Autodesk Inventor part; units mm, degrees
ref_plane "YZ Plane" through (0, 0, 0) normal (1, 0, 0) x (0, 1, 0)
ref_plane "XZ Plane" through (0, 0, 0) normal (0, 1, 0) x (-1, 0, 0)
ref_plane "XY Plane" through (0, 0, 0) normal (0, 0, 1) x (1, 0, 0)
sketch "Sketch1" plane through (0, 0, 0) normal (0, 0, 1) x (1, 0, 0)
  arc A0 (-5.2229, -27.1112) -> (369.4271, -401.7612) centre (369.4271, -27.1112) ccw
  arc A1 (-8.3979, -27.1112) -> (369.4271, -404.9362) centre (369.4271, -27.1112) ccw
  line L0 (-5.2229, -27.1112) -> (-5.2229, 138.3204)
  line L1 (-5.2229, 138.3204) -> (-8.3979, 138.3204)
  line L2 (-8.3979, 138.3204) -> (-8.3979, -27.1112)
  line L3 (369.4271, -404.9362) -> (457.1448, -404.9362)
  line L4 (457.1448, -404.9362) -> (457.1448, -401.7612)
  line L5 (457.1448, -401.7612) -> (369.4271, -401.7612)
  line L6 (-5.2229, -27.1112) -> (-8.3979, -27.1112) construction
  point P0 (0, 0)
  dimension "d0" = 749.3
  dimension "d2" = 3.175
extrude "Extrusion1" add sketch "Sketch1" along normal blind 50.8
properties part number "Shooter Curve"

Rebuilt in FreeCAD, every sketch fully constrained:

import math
import FreeCAD as App
import Part
import Sketcher

V = App.Vector
Q = App.Units.Quantity

doc = App.newDocument("Part")
params = doc.addObject("Spreadsheet::Sheet", "Params")
for row, (alias, value) in enumerate([
    ("sketch1_radius", "14.75 in"),
    ("sketch1_width", "0.125 in"),
    ("pad1_length", "2 in"),
], start=1):
    params.set(f"A{row}", alias)
    params.set(f"B{row}", "=" + value)
    params.setAlias(f"B{row}", alias)

body = doc.addObject("PartDesign::Body", "Body")

sketch1 = body.newObject("Sketcher::SketchObject", "Sketch")
sketch1.AttachmentSupport = (doc.getObject("XY_Plane"), [""])
sketch1.MapMode = "FlatFace"
sketch1.addGeometry([
    Part.ArcOfCircle(Part.Circle(V(369.4, -27.1, 0), V(0, 0, 1), 374.6), math.radians(180), math.radians(270)),
    Part.LineSegment(V(-5.2, -27.1, 0), V(-5.2, 138.3, 0)),
    Part.LineSegment(V(-5.2, 138.3, 0), V(-8.4, 138.3, 0)),
    Part.LineSegment(V(-8.4, 138.3, 0), V(-8.4, -27.1, 0)),
    Part.ArcOfCircle(Part.Circle(V(369.4, -27.1, 0), V(0, 0, 1), 377.8), math.radians(180), math.radians(270)),
    Part.LineSegment(V(369.4, -404.9, 0), V(457.1, -404.9, 0)),
    Part.LineSegment(V(457.1, -404.9, 0), V(457.1, -401.8, 0)),
    Part.LineSegment(V(457.1, -401.8, 0), V(369.4, -401.8, 0)),
], False)
sketch1.addConstraint([
    Sketcher.Constraint("Tangent", 0, 1, 1, 1),
    Sketcher.Constraint("Coincident", 1, 2, 2, 1),
    Sketcher.Constraint("Coincident", 2, 2, 3, 1),
    Sketcher.Constraint("Tangent", 3, 2, 4, 1),
    Sketcher.Constraint("Tangent", 4, 2, 5, 1),
    Sketcher.Constraint("Coincident", 5, 2, 6, 1),
    Sketcher.Constraint("Coincident", 6, 2, 7, 1),
    Sketcher.Constraint("Tangent", 7, 2, 0, 2),
    Sketcher.Constraint("Vertical", 1),
    Sketcher.Constraint("Horizontal", 2),
    Sketcher.Constraint("Vertical", 3),
    Sketcher.Constraint("Horizontal", 5),
    Sketcher.Constraint("Vertical", 6),
    Sketcher.Constraint("Horizontal", 7),
    Sketcher.Constraint("Coincident", 4, 3, 0, 3),
    Sketcher.Constraint("Radius", 0, Q("14.75 in")),
    Sketcher.Constraint("DistanceX", 2, 2, 2, 1, Q("0.125 in")),
    Sketcher.Constraint("DistanceX", 5, 1, 5, 2, Q("87.7177 mm")),
    Sketcher.Constraint("DistanceY", 1, 1, 1, 2, Q("165.4316 mm")),
    Sketcher.Constraint("DistanceX", -1, 1, 0, 3, Q("369.427 mm")),
    Sketcher.Constraint("DistanceY", 0, 3, -1, 1, Q("27.1112 mm")),
])
sketch1.setExpression("Constraints[15]", "Params.sketch1_radius")
sketch1.setExpression("Constraints[16]", "Params.sketch1_width")
pad1 = body.newObject("PartDesign::Pad", "Pad")
pad1.Profile = sketch1
pad1.setExpression("Length", "Params.pad1_length")

doc.recompute()
